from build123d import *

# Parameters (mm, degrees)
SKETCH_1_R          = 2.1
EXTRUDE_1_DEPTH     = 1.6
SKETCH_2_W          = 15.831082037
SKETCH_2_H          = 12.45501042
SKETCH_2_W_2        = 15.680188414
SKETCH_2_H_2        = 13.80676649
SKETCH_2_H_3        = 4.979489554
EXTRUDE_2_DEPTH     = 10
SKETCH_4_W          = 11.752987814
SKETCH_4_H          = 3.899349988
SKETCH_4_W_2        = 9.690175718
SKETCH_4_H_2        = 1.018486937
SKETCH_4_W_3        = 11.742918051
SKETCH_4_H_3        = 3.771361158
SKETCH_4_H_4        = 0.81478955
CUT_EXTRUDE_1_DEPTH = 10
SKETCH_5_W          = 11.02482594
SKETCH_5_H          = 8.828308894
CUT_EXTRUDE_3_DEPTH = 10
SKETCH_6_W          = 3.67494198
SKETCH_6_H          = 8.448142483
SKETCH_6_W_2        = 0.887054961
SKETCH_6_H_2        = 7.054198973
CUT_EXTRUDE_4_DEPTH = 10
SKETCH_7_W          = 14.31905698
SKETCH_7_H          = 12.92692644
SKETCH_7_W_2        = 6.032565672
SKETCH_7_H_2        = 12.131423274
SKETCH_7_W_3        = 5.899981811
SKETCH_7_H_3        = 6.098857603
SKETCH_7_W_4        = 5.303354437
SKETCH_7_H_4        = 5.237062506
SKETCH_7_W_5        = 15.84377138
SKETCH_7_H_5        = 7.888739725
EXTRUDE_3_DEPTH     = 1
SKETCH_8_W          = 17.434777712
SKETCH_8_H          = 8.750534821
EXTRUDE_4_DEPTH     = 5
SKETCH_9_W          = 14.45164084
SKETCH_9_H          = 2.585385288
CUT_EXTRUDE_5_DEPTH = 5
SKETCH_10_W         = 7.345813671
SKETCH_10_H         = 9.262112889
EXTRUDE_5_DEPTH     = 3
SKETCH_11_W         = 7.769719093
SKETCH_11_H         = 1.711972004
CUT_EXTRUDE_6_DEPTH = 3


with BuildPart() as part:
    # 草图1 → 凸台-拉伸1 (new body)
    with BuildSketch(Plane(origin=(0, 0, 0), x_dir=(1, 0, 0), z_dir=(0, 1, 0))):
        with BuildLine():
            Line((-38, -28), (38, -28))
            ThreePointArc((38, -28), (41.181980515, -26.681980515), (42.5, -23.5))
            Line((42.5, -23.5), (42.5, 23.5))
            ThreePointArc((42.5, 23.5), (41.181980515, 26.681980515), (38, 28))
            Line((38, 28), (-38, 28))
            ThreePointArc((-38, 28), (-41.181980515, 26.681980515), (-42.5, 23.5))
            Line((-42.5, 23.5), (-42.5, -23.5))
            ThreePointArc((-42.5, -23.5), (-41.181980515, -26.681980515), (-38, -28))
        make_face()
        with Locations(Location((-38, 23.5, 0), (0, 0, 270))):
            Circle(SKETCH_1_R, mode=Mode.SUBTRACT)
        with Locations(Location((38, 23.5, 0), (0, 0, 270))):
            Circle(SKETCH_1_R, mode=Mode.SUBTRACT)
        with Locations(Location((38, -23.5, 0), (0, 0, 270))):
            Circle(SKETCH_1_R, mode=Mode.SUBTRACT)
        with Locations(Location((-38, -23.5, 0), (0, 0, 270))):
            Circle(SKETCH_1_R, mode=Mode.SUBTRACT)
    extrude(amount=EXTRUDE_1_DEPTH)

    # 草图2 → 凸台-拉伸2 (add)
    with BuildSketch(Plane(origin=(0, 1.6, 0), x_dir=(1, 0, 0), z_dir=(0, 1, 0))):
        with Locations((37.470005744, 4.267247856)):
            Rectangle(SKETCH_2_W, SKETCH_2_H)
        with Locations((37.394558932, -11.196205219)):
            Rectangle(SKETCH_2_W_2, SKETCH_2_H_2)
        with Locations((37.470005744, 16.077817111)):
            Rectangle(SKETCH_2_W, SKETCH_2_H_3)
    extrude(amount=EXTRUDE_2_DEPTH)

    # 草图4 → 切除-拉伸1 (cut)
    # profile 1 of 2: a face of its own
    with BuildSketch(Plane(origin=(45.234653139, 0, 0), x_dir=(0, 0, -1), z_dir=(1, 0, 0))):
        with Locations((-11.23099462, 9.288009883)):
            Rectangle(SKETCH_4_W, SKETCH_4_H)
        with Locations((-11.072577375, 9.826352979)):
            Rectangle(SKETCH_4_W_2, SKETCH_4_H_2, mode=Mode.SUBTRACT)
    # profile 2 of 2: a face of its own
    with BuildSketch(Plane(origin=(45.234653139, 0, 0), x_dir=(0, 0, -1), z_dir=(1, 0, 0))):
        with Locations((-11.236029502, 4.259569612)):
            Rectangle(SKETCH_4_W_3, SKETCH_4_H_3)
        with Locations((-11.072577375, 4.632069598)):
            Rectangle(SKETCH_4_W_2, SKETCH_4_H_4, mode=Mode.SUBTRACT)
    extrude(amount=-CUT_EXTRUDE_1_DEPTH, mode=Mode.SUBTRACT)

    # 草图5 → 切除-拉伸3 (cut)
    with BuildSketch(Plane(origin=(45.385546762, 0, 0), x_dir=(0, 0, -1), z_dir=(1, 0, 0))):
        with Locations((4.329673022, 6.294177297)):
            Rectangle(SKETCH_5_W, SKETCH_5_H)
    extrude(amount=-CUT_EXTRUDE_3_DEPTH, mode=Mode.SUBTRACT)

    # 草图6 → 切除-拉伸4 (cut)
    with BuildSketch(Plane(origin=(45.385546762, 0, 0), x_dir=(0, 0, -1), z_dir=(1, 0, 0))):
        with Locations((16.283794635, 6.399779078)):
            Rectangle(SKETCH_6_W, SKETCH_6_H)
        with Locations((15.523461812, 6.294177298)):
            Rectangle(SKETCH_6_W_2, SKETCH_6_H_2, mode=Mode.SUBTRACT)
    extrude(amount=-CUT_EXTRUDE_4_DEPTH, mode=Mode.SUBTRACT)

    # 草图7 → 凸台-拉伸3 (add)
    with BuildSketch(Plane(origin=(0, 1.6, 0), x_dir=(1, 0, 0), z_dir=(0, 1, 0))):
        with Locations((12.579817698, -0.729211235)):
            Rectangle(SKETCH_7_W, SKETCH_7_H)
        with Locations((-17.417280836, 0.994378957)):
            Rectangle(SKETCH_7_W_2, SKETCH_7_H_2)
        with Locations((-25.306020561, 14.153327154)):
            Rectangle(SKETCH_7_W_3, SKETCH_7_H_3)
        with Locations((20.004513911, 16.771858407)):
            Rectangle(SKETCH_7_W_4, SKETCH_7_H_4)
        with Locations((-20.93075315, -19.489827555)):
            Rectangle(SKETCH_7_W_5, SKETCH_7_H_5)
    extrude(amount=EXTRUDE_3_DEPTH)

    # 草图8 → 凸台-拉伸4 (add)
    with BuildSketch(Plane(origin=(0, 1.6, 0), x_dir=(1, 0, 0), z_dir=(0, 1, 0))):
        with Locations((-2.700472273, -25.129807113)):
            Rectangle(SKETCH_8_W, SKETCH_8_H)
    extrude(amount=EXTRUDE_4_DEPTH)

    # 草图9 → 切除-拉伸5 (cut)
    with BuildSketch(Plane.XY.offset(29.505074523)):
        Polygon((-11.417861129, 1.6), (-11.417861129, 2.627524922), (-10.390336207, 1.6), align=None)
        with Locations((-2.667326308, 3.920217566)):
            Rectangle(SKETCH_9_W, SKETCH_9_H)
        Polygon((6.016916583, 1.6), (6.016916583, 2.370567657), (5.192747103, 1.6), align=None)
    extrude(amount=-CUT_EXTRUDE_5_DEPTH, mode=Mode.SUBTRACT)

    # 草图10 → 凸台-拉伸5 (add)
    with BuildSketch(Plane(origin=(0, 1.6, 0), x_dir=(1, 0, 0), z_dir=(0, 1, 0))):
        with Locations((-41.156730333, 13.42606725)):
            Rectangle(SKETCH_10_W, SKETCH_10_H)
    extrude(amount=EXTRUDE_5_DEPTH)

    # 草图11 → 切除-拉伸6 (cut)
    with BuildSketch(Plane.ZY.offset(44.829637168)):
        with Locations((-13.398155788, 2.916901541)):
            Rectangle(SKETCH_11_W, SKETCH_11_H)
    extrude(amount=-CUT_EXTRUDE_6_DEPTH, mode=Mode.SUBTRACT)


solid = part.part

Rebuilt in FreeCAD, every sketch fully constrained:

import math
import FreeCAD as App
import Part
import Sketcher

V = App.Vector


def add_polygon(sketch, points):
    """Adds a closed chain of lines whose ends are joined by coincident constraints."""
    first, n = sketch.GeometryCount, len(points)
    for a, b in zip(points, points[1:] + points[:1]):
        sketch.addGeometry(Part.LineSegment(App.Vector(*a, 0), App.Vector(*b, 0)), False)
    for i in range(n):
        sketch.addConstraint(Sketcher.Constraint("Coincident", first + i, 2, first + (i + 1) % n, 1))

doc = App.newDocument("Part")
body = doc.addObject("PartDesign::Body", "Body")

sketch1 = body.newObject("Sketcher::SketchObject", "Sketch")
sketch1.AttachmentSupport = (doc.getObject("XZ_Plane"), [""])
sketch1.MapMode = "FlatFace"
sketch1.addGeometry(Part.LineSegment(V(-38, 28, 0), V(38, 28, 0)), False)
sketch1.addGeometry(Part.ArcOfCircle(Part.Circle(V(38, 23.5, 0), V(0, 0, 1), 4.5), math.radians(0), math.radians(90)), False)
sketch1.addGeometry(Part.LineSegment(V(42.5, 23.5, 0), V(42.5, -23.5, 0)), False)
sketch1.addGeometry(Part.ArcOfCircle(Part.Circle(V(38, -23.5, 0), V(0, 0, 1), 4.5), math.radians(-90), math.radians(0)), False)
sketch1.addGeometry(Part.LineSegment(V(38, -28, 0), V(-38, -28, 0)), False)
sketch1.addGeometry(Part.ArcOfCircle(Part.Circle(V(-38, -23.5, 0), V(0, 0, 1), 4.5), math.radians(-180), math.radians(-90)), False)
sketch1.addGeometry(Part.LineSegment(V(-42.5, -23.5, 0), V(-42.5, 23.5, 0)), False)
sketch1.addGeometry(Part.ArcOfCircle(Part.Circle(V(-38, 23.5, 0), V(0, 0, 1), 4.5), math.radians(90), math.radians(180)), False)
sketch1.addGeometry(Part.Circle(V(-38, 23.5, 0), V(0, 0, 1), 2.1), False)
sketch1.addGeometry(Part.Circle(V(38, 23.5, 0), V(0, 0, 1), 2.1), False)
sketch1.addGeometry(Part.Circle(V(-38, -23.5, 0), V(0, 0, 1), 2.1), False)
sketch1.addGeometry(Part.Circle(V(38, -23.5, 0), V(0, 0, 1), 2.1), False)
sketch1.addConstraint(Sketcher.Constraint("Tangent", 0, 2, 1, 2))
sketch1.addConstraint(Sketcher.Constraint("Tangent", 1, 1, 2, 1))
sketch1.addConstraint(Sketcher.Constraint("Tangent", 2, 2, 3, 2))
sketch1.addConstraint(Sketcher.Constraint("Tangent", 3, 1, 4, 1))
sketch1.addConstraint(Sketcher.Constraint("Tangent", 4, 2, 5, 2))
sketch1.addConstraint(Sketcher.Constraint("Tangent", 5, 1, 6, 1))
sketch1.addConstraint(Sketcher.Constraint("Tangent", 6, 2, 7, 2))
sketch1.addConstraint(Sketcher.Constraint("Tangent", 7, 1, 0, 1))
sketch1.addConstraint(Sketcher.Constraint("Horizontal", 0))
sketch1.addConstraint(Sketcher.Constraint("Vertical", 2))
sketch1.addConstraint(Sketcher.Constraint("Horizontal", 4))
sketch1.addConstraint(Sketcher.Constraint("Vertical", 6))
sketch1.addConstraint(Sketcher.Constraint("Coincident", 8, 3, 7, 3))
sketch1.addConstraint(Sketcher.Constraint("Coincident", 9, 3, 1, 3))
sketch1.addConstraint(Sketcher.Constraint("Coincident", 10, 3, 5, 3))
sketch1.addConstraint(Sketcher.Constraint("Coincident", 11, 3, 3, 3))
sketch1.addConstraint(Sketcher.Constraint("Equal", 1, 3))
sketch1.addConstraint(Sketcher.Constraint("Equal", 3, 5))
sketch1.addConstraint(Sketcher.Constraint("Equal", 5, 7))
sketch1.addConstraint(Sketcher.Constraint("Equal", 8, 9))
sketch1.addConstraint(Sketcher.Constraint("Equal", 9, 10))
sketch1.addConstraint(Sketcher.Constraint("Equal", 10, 11))
sketch1.addConstraint(Sketcher.Constraint("Symmetric", 1, 3, 5, 3, -1, 1))
sketch1.addConstraint(Sketcher.Constraint("Diameter", 8, 4.2))
sketch1.addConstraint(Sketcher.Constraint("Radius", 1, 4.5))
sketch1.addConstraint(Sketcher.Constraint("DistanceX", 0, 1, 0, 2, 76.0))
sketch1.addConstraint(Sketcher.Constraint("DistanceY", 2, 2, 2, 1, 47.0))
pad1 = body.newObject("PartDesign::Pad", "Pad")
pad1.Profile = sketch1
pad1.Length = 1.6
pad1.Reversed = True

sketch2 = body.newObject("Sketcher::SketchObject", "Sketch001")
sketch2.AttachmentSupport = (doc.getObject("XZ_Plane"), [""])
sketch2.MapMode = "FlatFace"
sketch2.AttachmentOffset = App.Placement(V(0, 0, -1.6), App.Rotation())
add_polygon(sketch2, [(29.6, -10.5), (29.6, 2), (45.4, 2), (45.4, -10.5)])
add_polygon(sketch2, [(29.6, 4.3), (29.6, 18.1), (45.2, 18.1), (45.2, 4.3)])
add_polygon(sketch2, [(29.6, -18.6), (29.6, -13.6), (45.4, -13.6), (45.4, -18.6)])
sketch2.addConstraint(Sketcher.Constraint("Vertical", 0))
sketch2.addConstraint(Sketcher.Constraint("Horizontal", 1))
sketch2.addConstraint(Sketcher.Constraint("Vertical", 2))
sketch2.addConstraint(Sketcher.Constraint("Horizontal", 3))
sketch2.addConstraint(Sketcher.Constraint("Vertical", 4))
sketch2.addConstraint(Sketcher.Constraint("Horizontal", 5))
sketch2.addConstraint(Sketcher.Constraint("Vertical", 6))
sketch2.addConstraint(Sketcher.Constraint("Horizontal", 7))
sketch2.addConstraint(Sketcher.Constraint("Vertical", 8))
sketch2.addConstraint(Sketcher.Constraint("Horizontal", 9))
sketch2.addConstraint(Sketcher.Constraint("Vertical", 10))
sketch2.addConstraint(Sketcher.Constraint("Horizontal", 11))
sketch2.addConstraint(Sketcher.Constraint("Vertical", 3, 2, 4, 2))
sketch2.addConstraint(Sketcher.Constraint("Vertical", 7, 2, 8, 2))
sketch2.addConstraint(Sketcher.Constraint("Vertical", 2, 2, 9, 2))
sketch2.addConstraint(Sketcher.Constraint("DistanceX", 5, 1, 5, 2, 15.680188))
sketch2.addConstraint(Sketcher.Constraint("DistanceY", 0, 1, 0, 2, 12.45501))
sketch2.addConstraint(Sketcher.Constraint("DistanceY", 8, 1, 8, 2, 4.97949))
sketch2.addConstraint(Sketcher.Constraint("DistanceX", 1, 1, 1, 2, 15.831082))
sketch2.addConstraint(Sketcher.Constraint("DistanceY", 4, 1, 4, 2, 13.806766))
sketch2.addConstraint(Sketcher.Constraint("DistanceY", -1, 1, 4, 2, 18.099588))
sketch2.addConstraint(Sketcher.Constraint("DistanceY", 10, 2, -1, 1, 18.567562))
sketch2.addConstraint(Sketcher.Constraint("DistanceY", 0, 2, 4, 2, 16.139331))
sketch2.addConstraint(Sketcher.Constraint("DistanceX", -1, 1, 0, 2, 29.554465))
pad2 = body.newObject("PartDesign::Pad", "Pad001")
pad2.Profile = sketch2
pad2.Length = 10
pad2.Reversed = True

sketch3 = body.newObject("Sketcher::SketchObject", "Sketch002")
sketch3.AttachmentSupport = (doc.getObject("YZ_Plane"), [""])
sketch3.MapMode = "FlatFace"
sketch3.AttachmentOffset = App.Placement(V(0, 0, 45.234653), App.Rotation())
add_polygon(sketch3, [(11.2, 17.1), (7.3, 17.1), (7.3, 5.4), (11.2, 5.4)])
add_polygon(sketch3, [(9.3, 6.2), (9.3, 15.9), (10.3, 15.9), (10.3, 6.2)])
add_polygon(sketch3, [(6.1, 17.1), (2.4, 17.1), (2.4, 5.4), (6.1, 5.4)])
add_polygon(sketch3, [(4.2, 6.2), (4.2, 15.9), (5, 15.9), (5, 6.2)])
sketch3.addConstraint(Sketcher.Constraint("Horizontal", 0))
sketch3.addConstraint(Sketcher.Constraint("Vertical", 1))
sketch3.addConstraint(Sketcher.Constraint("Horizontal", 2))
sketch3.addConstraint(Sketcher.Constraint("Vertical", 3))
sketch3.addConstraint(Sketcher.Constraint("Vertical", 4))
sketch3.addConstraint(Sketcher.Constraint("Horizontal", 5))
sketch3.addConstraint(Sketcher.Constraint("Vertical", 6))
sketch3.addConstraint(Sketcher.Constraint("Horizontal", 7))
sketch3.addConstraint(Sketcher.Constraint("Horizontal", 8))
sketch3.addConstraint(Sketcher.Constraint("Vertical", 9))
sketch3.addConstraint(Sketcher.Constraint("Horizontal", 10))
sketch3.addConstraint(Sketcher.Constraint("Vertical", 11))
sketch3.addConstraint(Sketcher.Constraint("Vertical", 12))
sketch3.addConstraint(Sketcher.Constraint("Horizontal", 13))
sketch3.addConstraint(Sketcher.Constraint("Vertical", 14))
sketch3.addConstraint(Sketcher.Constraint("Horizontal", 15))
sketch3.addConstraint(Sketcher.Constraint("Horizontal", 3, 2, 8, 2))
sketch3.addConstraint(Sketcher.Constraint("Horizontal", 5, 2, 12, 2))
sketch3.addConstraint(Sketcher.Constraint("Horizontal", 7, 2, 14, 2))
sketch3.addConstraint(Sketcher.Constraint("DistanceY", 6, 2, 3, 2, 10.879999))
sketch3.addConstraint(Sketcher.Constraint("DistanceX", 0, 2, 0, 1, 3.89935))
sketch3.addConstraint(Sketcher.Constraint("DistanceX", 8, 2, 8, 1, 3.771361))
sketch3.addConstraint(Sketcher.Constraint("DistanceX", 13, 1, 13, 2, 0.81479))
sketch3.addConstraint(Sketcher.Constraint("DistanceY", 9, 2, 9, 1, 11.742918))
sketch3.addConstraint(Sketcher.Constraint("DistanceY", -1, 1, 1, 2, 5.354501))
sketch3.addConstraint(Sketcher.Constraint("DistanceX", 5, 1, 5, 2, 1.018487))
sketch3.addConstraint(Sketcher.Constraint("DistanceY", 1, 2, 1, 1, 11.752988))
sketch3.addConstraint(Sketcher.Constraint("DistanceY", 4, 1, 4, 2, 9.690176))
sketch3.addConstraint(Sketcher.Constraint("DistanceX", -1, 1, 4, 2, 9.31711))
sketch3.addConstraint(Sketcher.Constraint("DistanceX", -1, 1, 8, 2, 2.373889))
sketch3.addConstraint(Sketcher.Constraint("DistanceX", 5, 2, 3, 2, 0.902088))
sketch3.addConstraint(Sketcher.Constraint("DistanceX", 12, 2, 0, 2, 3.11366))
pocket1 = body.newObject("PartDesign::Pocket", "Pocket")
pocket1.Profile = sketch3
pocket1.Length = 10

sketch4 = body.newObject("Sketcher::SketchObject", "Sketch003")
sketch4.AttachmentSupport = (doc.getObject("YZ_Plane"), [""])
sketch4.MapMode = "FlatFace"
sketch4.AttachmentOffset = App.Placement(V(0, 0, 45.385547), App.Rotation())
add_polygon(sketch4, [(11, 1), (2, 1), (2, -10), (11, -10)])
sketch4.addConstraint(Sketcher.Constraint("Horizontal", 0))
sketch4.addConstraint(Sketcher.Constraint("Vertical", 1))
sketch4.addConstraint(Sketcher.Constraint("Horizontal", 2))
sketch4.addConstraint(Sketcher.Constraint("Vertical", 3))
sketch4.addConstraint(Sketcher.Constraint("DistanceX", 0, 2, 0, 1, 8.828309))
sketch4.addConstraint(Sketcher.Constraint("DistanceY", 1, 2, 1, 1, 11.024826))
sketch4.addConstraint(Sketcher.Constraint("DistanceY", -1, 1, 0, 2, 1.18274))
sketch4.addConstraint(Sketcher.Constraint("DistanceX", -1, 1, 2, 2, 10.708332))
pocket2 = body.newObject("PartDesign::Pocket", "Pocket001")
pocket2.Profile = sketch4
pocket2.Length = 10

sketch5 = body.newObject("Sketcher::SketchObject", "Sketch004")
sketch5.AttachmentSupport = (doc.getObject("YZ_Plane"), [""])
sketch5.MapMode = "FlatFace"
sketch5.AttachmentOffset = App.Placement(V(0, 0, 45.385547), App.Rotation())
add_polygon(sketch5, [(10.6, -14.4), (2.2, -14.4), (2.2, -18.1), (10.6, -18.1)])
add_polygon(sketch5, [(2.8, -16), (2.8, -15.1), (9.8, -15.1), (9.8, -16)])
sketch5.addConstraint(Sketcher.Constraint("Horizontal", 0))
sketch5.addConstraint(Sketcher.Constraint("Vertical", 1))
sketch5.addConstraint(Sketcher.Constraint("Horizontal", 2))
sketch5.addConstraint(Sketcher.Constraint("Vertical", 3))
sketch5.addConstraint(Sketcher.Constraint("Vertical", 4))
sketch5.addConstraint(Sketcher.Constraint("Horizontal", 5))
sketch5.addConstraint(Sketcher.Constraint("Vertical", 6))
sketch5.addConstraint(Sketcher.Constraint("Horizontal", 7))
sketch5.addConstraint(Sketcher.Constraint("DistanceX", 5, 1, 5, 2, 7.054199))
sketch5.addConstraint(Sketcher.Constraint("DistanceY", 1, 2, 1, 1, 3.674942))
sketch5.addConstraint(Sketcher.Constraint("DistanceX", 0, 2, 0, 1, 8.448142))
sketch5.addConstraint(Sketcher.Constraint("DistanceY", 4, 1, 4, 2, 0.887055))
sketch5.addConstraint(Sketcher.Constraint("DistanceX", -1, 1, 2, 2, 10.62385))
sketch5.addConstraint(Sketcher.Constraint("DistanceY", 6, 2, -1, 1, 15.966989))
sketch5.addConstraint(Sketcher.Constraint("DistanceX", 0, 2, 4, 2, 0.59137))
sketch5.addConstraint(Sketcher.Constraint("DistanceY", 4, 2, 0, 2, 0.633611))
pocket3 = body.newObject("PartDesign::Pocket", "Pocket002")
pocket3.Profile = sketch5
pocket3.Length = 10

sketch6 = body.newObject("Sketcher::SketchObject", "Sketch005")
sketch6.AttachmentSupport = (doc.getObject("XZ_Plane"), [""])
sketch6.MapMode = "FlatFace"
sketch6.AttachmentOffset = App.Placement(V(0, 0, -1.6), App.Rotation())
add_polygon(sketch6, [(5, -6), (5, 7), (20, 7), (20, -6)])
add_polygon(sketch6, [(-20, -7), (-20, 5), (-14, 5), (-14, -7)])
add_polygon(sketch6, [(-28, -17), (-28, -11), (-22, -11), (-22, -17)])
add_polygon(sketch6, [(17, -19), (17, -14), (23, -14), (23, -19)])
add_polygon(sketch6, [(-29, 16), (-29, 23), (-13, 23), (-13, 16)])
sketch6.addConstraint(Sketcher.Constraint("Vertical", 0))
sketch6.addConstraint(Sketcher.Constraint("Horizontal", 1))
sketch6.addConstraint(Sketcher.Constraint("Vertical", 2))
sketch6.addConstraint(Sketcher.Constraint("Horizontal", 3))
sketch6.addConstraint(Sketcher.Constraint("Vertical", 4))
sketch6.addConstraint(Sketcher.Constraint("Horizontal", 5))
sketch6.addConstraint(Sketcher.Constraint("Vertical", 6))
sketch6.addConstraint(Sketcher.Constraint("Horizontal", 7))
sketch6.addConstraint(Sketcher.Constraint("Vertical", 8))
sketch6.addConstraint(Sketcher.Constraint("Horizontal", 9))
sketch6.addConstraint(Sketcher.Constraint("Vertical", 10))
sketch6.addConstraint(Sketcher.Constraint("Horizontal", 11))
sketch6.addConstraint(Sketcher.Constraint("Vertical", 12))
sketch6.addConstraint(Sketcher.Constraint("Horizontal", 13))
sketch6.addConstraint(Sketcher.Constraint("Vertical", 14))
sketch6.addConstraint(Sketcher.Constraint("Horizontal", 15))
sketch6.addConstraint(Sketcher.Constraint("Vertical", 16))
sketch6.addConstraint(Sketcher.Constraint("Horizontal", 17))
sketch6.addConstraint(Sketcher.Constraint("Vertical", 18))
sketch6.addConstraint(Sketcher.Constraint("Horizontal", 19))
sketch6.addConstraint(Sketcher.Constraint("DistanceY", 12, 2, 1, 2, 21.346002))
sketch6.addConstraint(Sketcher.Constraint("DistanceX", 9, 1, 9, 2, 5.899982))
sketch6.addConstraint(Sketcher.Constraint("DistanceX", 17, 1, 17, 2, 15.843771))
sketch6.addConstraint(Sketcher.Constraint("DistanceY", 16, 1, 16, 2, 7.88874))
sketch6.addConstraint(Sketcher.Constraint("DistanceY", 8, 2, -1, 1, 11.103898))
sketch6.addConstraint(Sketcher.Constraint("DistanceX", 8, 2, 3, 2, 33.676301))
sketch6.addConstraint(Sketcher.Constraint("DistanceX", 3, 2, 13, 2, 17.235902))
sketch6.addConstraint(Sketcher.Constraint("DistanceX", 1, 1, 1, 2, 14.319057))
sketch6.addConstraint(Sketcher.Constraint("DistanceX", 5, 1, 5, 2, 6.032566))
sketch6.addConstraint(Sketcher.Constraint("DistanceX", 13, 1, 13, 2, 5.303354))
sketch6.addConstraint(Sketcher.Constraint("DistanceY", 0, 1, 0, 2, 12.926926))
sketch6.addConstraint(Sketcher.Constraint("DistanceY", 4, 1, 4, 2, 12.131423))
sketch6.addConstraint(Sketcher.Constraint("DistanceY", 8, 1, 8, 2, 6.098858))
sketch6.addConstraint(Sketcher.Constraint("DistanceY", 12, 1, 12, 2, 5.237063))
sketch6.addConstraint(Sketcher.Constraint("DistanceX", -1, 1, 0, 2, 5.420289))
sketch6.addConstraint(Sketcher.Constraint("DistanceY", 2, 2, -1, 1, 5.734252))
sketch6.addConstraint(Sketcher.Constraint("DistanceY", 6, 2, -1, 1, 7.060091))
sketch6.addConstraint(Sketcher.Constraint("DistanceX", 16, 2, -1, 1, 28.852639))
sketch6.addConstraint(Sketcher.Constraint("DistanceX", 4, 2, 1, 2, 40.17291))
sketch6.addConstraint(Sketcher.Constraint("DistanceY", 7, 2, 16, 2, 30.494288))
pad3 = body.newObject("PartDesign::Pad", "Pad002")
pad3.Profile = sketch6
pad3.Length = 1
pad3.Reversed = True

sketch7 = body.newObject("Sketcher::SketchObject", "Sketch006")
sketch7.AttachmentSupport = (doc.getObject("XZ_Plane"), [""])
sketch7.MapMode = "FlatFace"
sketch7.AttachmentOffset = App.Placement(V(0, 0, -1.6), App.Rotation())
add_polygon(sketch7, [(-11, 21), (-11, 30), (6, 30), (6, 21)])
sketch7.addConstraint(Sketcher.Constraint("Vertical", 0))
sketch7.addConstraint(Sketcher.Constraint("Horizontal", 1))
sketch7.addConstraint(Sketcher.Constraint("Vertical", 2))
sketch7.addConstraint(Sketcher.Constraint("Horizontal", 3))
sketch7.addConstraint(Sketcher.Constraint("DistanceX", 1, 1, 1, 2, 17.434778))
sketch7.addConstraint(Sketcher.Constraint("DistanceY", 0, 1, 0, 2, 8.750535))
sketch7.addConstraint(Sketcher.Constraint("DistanceX", 0, 2, -1, 1, 11.417861))
sketch7.addConstraint(Sketcher.Constraint("DistanceY", -1, 1, 2, 2, 20.75454))
pad4 = body.newObject("PartDesign::Pad", "Pad003")
pad4.Profile = sketch7
pad4.Length = 5
pad4.Reversed = True

sketch8 = body.newObject("Sketcher::SketchObject", "Sketch007")
sketch8.AttachmentSupport = (doc.getObject("XY_Plane"), [""])
sketch8.MapMode = "FlatFace"
sketch8.AttachmentOffset = App.Placement(V(0, 0, 29.505075), App.Rotation())
add_polygon(sketch8, [(-11.4, 2.6), (-11.4, 1.6), (-10.4, 1.6)])
add_polygon(sketch8, [(-9.9, 5.2), (-9.9, 2.6), (4.6, 2.6), (4.6, 5.2)])
add_polygon(sketch8, [(6, 1.6), (6, 2.4), (5.2, 1.6)])
sketch8.addConstraint(Sketcher.Constraint("Vertical", 0))
sketch8.addConstraint(Sketcher.Constraint("Horizontal", 1))
sketch8.addConstraint(Sketcher.Constraint("Vertical", 3))
sketch8.addConstraint(Sketcher.Constraint("Horizontal", 4))
sketch8.addConstraint(Sketcher.Constraint("Vertical", 5))
sketch8.addConstraint(Sketcher.Constraint("Horizontal", 6))
sketch8.addConstraint(Sketcher.Constraint("Vertical", 7))
sketch8.addConstraint(Sketcher.Constraint("Horizontal", 9))
sketch8.addConstraint(Sketcher.Constraint("Horizontal", 2, 2, 3, 2))
sketch8.addConstraint(Sketcher.Constraint("Horizontal", 1, 2, 8, 2))
sketch8.addConstraint(Sketcher.Constraint("Equal", 1, 0))
sketch8.addConstraint(Sketcher.Constraint("DistanceY", -1, 1, 0, 2, 1.6))
sketch8.addConstraint(Sketcher.Constraint("DistanceX", 4, 1, 4, 2, 14.451641))
sketch8.addConstraint(Sketcher.Constraint("DistanceX", 9, 1, 9, 2, 0.824169))
sketch8.addConstraint(Sketcher.Constraint("Distance", 2, 1.45314))
sketch8.addConstraint(Sketcher.Constraint("DistanceY", 3, 2, 3, 1, 2.585385))
sketch8.addConstraint(Sketcher.Constraint("DistanceY", 7, 1, 7, 2, 0.770568))
sketch8.addConstraint(Sketcher.Constraint("DistanceX", 0, 2, -1, 1, 11.417861))
sketch8.addConstraint(Sketcher.Constraint("DistanceX", 1, 2, 3, 2, 0.497189))
sketch8.addConstraint(Sketcher.Constraint("DistanceX", -1, 1, 7, 2, 6.016917))
pocket4 = body.newObject("PartDesign::Pocket", "Pocket003")
pocket4.Profile = sketch8
pocket4.Length = 5

sketch9 = body.newObject("Sketcher::SketchObject", "Sketch008")
sketch9.AttachmentSupport = (doc.getObject("XZ_Plane"), [""])
sketch9.MapMode = "FlatFace"
sketch9.AttachmentOffset = App.Placement(V(0, 0, -1.6), App.Rotation())
add_polygon(sketch9, [(-45, -18), (-45, -9), (-37, -9), (-37, -18)])
sketch9.addConstraint(Sketcher.Constraint("Vertical", 0))
sketch9.addConstraint(Sketcher.Constraint("Horizontal", 1))
sketch9.addConstraint(Sketcher.Constraint("Vertical", 2))
sketch9.addConstraint(Sketcher.Constraint("Horizontal", 3))
sketch9.addConstraint(Sketcher.Constraint("DistanceX", 1, 1, 1, 2, 7.345814))
sketch9.addConstraint(Sketcher.Constraint("DistanceY", 0, 1, 0, 2, 9.262113))
sketch9.addConstraint(Sketcher.Constraint("DistanceY", 0, 2, -1, 1, 8.795011))
sketch9.addConstraint(Sketcher.Constraint("DistanceX", 0, 2, -1, 1, 44.829637))
pad5 = body.newObject("PartDesign::Pad", "Pad004")
pad5.Profile = sketch9
pad5.Length = 3
pad5.Reversed = True

sketch10 = body.newObject("Sketcher::SketchObject", "Sketch009")
sketch10.AttachmentSupport = (doc.getObject("YZ_Plane"), [""])
sketch10.MapMode = "FlatFace"
sketch10.AttachmentOffset = App.Placement(V(0, 0, -44.829637), App.Rotation())
add_polygon(sketch10, [(3.8, -17.3), (2.1, -17.3), (2.1, -9.5), (3.8, -9.5)])
sketch10.addConstraint(Sketcher.Constraint("Horizontal", 0))
sketch10.addConstraint(Sketcher.Constraint("Vertical", 1))
sketch10.addConstraint(Sketcher.Constraint("Horizontal", 2))
sketch10.addConstraint(Sketcher.Constraint("Vertical", 3))
sketch10.addConstraint(Sketcher.Constraint("DistanceY", 1, 1, 1, 2, 7.769719))
sketch10.addConstraint(Sketcher.Constraint("DistanceX", 0, 2, 0, 1, 1.711972))
sketch10.addConstraint(Sketcher.Constraint("DistanceX", -1, 1, 0, 2, 2.060916))
sketch10.addConstraint(Sketcher.Constraint("DistanceY", 0, 2, -1, 1, 17.283015))
pocket5 = body.newObject("PartDesign::Pocket", "Pocket004")
pocket5.Profile = sketch10
pocket5.Length = 3
pocket5.Reversed = True

doc.recompute()
